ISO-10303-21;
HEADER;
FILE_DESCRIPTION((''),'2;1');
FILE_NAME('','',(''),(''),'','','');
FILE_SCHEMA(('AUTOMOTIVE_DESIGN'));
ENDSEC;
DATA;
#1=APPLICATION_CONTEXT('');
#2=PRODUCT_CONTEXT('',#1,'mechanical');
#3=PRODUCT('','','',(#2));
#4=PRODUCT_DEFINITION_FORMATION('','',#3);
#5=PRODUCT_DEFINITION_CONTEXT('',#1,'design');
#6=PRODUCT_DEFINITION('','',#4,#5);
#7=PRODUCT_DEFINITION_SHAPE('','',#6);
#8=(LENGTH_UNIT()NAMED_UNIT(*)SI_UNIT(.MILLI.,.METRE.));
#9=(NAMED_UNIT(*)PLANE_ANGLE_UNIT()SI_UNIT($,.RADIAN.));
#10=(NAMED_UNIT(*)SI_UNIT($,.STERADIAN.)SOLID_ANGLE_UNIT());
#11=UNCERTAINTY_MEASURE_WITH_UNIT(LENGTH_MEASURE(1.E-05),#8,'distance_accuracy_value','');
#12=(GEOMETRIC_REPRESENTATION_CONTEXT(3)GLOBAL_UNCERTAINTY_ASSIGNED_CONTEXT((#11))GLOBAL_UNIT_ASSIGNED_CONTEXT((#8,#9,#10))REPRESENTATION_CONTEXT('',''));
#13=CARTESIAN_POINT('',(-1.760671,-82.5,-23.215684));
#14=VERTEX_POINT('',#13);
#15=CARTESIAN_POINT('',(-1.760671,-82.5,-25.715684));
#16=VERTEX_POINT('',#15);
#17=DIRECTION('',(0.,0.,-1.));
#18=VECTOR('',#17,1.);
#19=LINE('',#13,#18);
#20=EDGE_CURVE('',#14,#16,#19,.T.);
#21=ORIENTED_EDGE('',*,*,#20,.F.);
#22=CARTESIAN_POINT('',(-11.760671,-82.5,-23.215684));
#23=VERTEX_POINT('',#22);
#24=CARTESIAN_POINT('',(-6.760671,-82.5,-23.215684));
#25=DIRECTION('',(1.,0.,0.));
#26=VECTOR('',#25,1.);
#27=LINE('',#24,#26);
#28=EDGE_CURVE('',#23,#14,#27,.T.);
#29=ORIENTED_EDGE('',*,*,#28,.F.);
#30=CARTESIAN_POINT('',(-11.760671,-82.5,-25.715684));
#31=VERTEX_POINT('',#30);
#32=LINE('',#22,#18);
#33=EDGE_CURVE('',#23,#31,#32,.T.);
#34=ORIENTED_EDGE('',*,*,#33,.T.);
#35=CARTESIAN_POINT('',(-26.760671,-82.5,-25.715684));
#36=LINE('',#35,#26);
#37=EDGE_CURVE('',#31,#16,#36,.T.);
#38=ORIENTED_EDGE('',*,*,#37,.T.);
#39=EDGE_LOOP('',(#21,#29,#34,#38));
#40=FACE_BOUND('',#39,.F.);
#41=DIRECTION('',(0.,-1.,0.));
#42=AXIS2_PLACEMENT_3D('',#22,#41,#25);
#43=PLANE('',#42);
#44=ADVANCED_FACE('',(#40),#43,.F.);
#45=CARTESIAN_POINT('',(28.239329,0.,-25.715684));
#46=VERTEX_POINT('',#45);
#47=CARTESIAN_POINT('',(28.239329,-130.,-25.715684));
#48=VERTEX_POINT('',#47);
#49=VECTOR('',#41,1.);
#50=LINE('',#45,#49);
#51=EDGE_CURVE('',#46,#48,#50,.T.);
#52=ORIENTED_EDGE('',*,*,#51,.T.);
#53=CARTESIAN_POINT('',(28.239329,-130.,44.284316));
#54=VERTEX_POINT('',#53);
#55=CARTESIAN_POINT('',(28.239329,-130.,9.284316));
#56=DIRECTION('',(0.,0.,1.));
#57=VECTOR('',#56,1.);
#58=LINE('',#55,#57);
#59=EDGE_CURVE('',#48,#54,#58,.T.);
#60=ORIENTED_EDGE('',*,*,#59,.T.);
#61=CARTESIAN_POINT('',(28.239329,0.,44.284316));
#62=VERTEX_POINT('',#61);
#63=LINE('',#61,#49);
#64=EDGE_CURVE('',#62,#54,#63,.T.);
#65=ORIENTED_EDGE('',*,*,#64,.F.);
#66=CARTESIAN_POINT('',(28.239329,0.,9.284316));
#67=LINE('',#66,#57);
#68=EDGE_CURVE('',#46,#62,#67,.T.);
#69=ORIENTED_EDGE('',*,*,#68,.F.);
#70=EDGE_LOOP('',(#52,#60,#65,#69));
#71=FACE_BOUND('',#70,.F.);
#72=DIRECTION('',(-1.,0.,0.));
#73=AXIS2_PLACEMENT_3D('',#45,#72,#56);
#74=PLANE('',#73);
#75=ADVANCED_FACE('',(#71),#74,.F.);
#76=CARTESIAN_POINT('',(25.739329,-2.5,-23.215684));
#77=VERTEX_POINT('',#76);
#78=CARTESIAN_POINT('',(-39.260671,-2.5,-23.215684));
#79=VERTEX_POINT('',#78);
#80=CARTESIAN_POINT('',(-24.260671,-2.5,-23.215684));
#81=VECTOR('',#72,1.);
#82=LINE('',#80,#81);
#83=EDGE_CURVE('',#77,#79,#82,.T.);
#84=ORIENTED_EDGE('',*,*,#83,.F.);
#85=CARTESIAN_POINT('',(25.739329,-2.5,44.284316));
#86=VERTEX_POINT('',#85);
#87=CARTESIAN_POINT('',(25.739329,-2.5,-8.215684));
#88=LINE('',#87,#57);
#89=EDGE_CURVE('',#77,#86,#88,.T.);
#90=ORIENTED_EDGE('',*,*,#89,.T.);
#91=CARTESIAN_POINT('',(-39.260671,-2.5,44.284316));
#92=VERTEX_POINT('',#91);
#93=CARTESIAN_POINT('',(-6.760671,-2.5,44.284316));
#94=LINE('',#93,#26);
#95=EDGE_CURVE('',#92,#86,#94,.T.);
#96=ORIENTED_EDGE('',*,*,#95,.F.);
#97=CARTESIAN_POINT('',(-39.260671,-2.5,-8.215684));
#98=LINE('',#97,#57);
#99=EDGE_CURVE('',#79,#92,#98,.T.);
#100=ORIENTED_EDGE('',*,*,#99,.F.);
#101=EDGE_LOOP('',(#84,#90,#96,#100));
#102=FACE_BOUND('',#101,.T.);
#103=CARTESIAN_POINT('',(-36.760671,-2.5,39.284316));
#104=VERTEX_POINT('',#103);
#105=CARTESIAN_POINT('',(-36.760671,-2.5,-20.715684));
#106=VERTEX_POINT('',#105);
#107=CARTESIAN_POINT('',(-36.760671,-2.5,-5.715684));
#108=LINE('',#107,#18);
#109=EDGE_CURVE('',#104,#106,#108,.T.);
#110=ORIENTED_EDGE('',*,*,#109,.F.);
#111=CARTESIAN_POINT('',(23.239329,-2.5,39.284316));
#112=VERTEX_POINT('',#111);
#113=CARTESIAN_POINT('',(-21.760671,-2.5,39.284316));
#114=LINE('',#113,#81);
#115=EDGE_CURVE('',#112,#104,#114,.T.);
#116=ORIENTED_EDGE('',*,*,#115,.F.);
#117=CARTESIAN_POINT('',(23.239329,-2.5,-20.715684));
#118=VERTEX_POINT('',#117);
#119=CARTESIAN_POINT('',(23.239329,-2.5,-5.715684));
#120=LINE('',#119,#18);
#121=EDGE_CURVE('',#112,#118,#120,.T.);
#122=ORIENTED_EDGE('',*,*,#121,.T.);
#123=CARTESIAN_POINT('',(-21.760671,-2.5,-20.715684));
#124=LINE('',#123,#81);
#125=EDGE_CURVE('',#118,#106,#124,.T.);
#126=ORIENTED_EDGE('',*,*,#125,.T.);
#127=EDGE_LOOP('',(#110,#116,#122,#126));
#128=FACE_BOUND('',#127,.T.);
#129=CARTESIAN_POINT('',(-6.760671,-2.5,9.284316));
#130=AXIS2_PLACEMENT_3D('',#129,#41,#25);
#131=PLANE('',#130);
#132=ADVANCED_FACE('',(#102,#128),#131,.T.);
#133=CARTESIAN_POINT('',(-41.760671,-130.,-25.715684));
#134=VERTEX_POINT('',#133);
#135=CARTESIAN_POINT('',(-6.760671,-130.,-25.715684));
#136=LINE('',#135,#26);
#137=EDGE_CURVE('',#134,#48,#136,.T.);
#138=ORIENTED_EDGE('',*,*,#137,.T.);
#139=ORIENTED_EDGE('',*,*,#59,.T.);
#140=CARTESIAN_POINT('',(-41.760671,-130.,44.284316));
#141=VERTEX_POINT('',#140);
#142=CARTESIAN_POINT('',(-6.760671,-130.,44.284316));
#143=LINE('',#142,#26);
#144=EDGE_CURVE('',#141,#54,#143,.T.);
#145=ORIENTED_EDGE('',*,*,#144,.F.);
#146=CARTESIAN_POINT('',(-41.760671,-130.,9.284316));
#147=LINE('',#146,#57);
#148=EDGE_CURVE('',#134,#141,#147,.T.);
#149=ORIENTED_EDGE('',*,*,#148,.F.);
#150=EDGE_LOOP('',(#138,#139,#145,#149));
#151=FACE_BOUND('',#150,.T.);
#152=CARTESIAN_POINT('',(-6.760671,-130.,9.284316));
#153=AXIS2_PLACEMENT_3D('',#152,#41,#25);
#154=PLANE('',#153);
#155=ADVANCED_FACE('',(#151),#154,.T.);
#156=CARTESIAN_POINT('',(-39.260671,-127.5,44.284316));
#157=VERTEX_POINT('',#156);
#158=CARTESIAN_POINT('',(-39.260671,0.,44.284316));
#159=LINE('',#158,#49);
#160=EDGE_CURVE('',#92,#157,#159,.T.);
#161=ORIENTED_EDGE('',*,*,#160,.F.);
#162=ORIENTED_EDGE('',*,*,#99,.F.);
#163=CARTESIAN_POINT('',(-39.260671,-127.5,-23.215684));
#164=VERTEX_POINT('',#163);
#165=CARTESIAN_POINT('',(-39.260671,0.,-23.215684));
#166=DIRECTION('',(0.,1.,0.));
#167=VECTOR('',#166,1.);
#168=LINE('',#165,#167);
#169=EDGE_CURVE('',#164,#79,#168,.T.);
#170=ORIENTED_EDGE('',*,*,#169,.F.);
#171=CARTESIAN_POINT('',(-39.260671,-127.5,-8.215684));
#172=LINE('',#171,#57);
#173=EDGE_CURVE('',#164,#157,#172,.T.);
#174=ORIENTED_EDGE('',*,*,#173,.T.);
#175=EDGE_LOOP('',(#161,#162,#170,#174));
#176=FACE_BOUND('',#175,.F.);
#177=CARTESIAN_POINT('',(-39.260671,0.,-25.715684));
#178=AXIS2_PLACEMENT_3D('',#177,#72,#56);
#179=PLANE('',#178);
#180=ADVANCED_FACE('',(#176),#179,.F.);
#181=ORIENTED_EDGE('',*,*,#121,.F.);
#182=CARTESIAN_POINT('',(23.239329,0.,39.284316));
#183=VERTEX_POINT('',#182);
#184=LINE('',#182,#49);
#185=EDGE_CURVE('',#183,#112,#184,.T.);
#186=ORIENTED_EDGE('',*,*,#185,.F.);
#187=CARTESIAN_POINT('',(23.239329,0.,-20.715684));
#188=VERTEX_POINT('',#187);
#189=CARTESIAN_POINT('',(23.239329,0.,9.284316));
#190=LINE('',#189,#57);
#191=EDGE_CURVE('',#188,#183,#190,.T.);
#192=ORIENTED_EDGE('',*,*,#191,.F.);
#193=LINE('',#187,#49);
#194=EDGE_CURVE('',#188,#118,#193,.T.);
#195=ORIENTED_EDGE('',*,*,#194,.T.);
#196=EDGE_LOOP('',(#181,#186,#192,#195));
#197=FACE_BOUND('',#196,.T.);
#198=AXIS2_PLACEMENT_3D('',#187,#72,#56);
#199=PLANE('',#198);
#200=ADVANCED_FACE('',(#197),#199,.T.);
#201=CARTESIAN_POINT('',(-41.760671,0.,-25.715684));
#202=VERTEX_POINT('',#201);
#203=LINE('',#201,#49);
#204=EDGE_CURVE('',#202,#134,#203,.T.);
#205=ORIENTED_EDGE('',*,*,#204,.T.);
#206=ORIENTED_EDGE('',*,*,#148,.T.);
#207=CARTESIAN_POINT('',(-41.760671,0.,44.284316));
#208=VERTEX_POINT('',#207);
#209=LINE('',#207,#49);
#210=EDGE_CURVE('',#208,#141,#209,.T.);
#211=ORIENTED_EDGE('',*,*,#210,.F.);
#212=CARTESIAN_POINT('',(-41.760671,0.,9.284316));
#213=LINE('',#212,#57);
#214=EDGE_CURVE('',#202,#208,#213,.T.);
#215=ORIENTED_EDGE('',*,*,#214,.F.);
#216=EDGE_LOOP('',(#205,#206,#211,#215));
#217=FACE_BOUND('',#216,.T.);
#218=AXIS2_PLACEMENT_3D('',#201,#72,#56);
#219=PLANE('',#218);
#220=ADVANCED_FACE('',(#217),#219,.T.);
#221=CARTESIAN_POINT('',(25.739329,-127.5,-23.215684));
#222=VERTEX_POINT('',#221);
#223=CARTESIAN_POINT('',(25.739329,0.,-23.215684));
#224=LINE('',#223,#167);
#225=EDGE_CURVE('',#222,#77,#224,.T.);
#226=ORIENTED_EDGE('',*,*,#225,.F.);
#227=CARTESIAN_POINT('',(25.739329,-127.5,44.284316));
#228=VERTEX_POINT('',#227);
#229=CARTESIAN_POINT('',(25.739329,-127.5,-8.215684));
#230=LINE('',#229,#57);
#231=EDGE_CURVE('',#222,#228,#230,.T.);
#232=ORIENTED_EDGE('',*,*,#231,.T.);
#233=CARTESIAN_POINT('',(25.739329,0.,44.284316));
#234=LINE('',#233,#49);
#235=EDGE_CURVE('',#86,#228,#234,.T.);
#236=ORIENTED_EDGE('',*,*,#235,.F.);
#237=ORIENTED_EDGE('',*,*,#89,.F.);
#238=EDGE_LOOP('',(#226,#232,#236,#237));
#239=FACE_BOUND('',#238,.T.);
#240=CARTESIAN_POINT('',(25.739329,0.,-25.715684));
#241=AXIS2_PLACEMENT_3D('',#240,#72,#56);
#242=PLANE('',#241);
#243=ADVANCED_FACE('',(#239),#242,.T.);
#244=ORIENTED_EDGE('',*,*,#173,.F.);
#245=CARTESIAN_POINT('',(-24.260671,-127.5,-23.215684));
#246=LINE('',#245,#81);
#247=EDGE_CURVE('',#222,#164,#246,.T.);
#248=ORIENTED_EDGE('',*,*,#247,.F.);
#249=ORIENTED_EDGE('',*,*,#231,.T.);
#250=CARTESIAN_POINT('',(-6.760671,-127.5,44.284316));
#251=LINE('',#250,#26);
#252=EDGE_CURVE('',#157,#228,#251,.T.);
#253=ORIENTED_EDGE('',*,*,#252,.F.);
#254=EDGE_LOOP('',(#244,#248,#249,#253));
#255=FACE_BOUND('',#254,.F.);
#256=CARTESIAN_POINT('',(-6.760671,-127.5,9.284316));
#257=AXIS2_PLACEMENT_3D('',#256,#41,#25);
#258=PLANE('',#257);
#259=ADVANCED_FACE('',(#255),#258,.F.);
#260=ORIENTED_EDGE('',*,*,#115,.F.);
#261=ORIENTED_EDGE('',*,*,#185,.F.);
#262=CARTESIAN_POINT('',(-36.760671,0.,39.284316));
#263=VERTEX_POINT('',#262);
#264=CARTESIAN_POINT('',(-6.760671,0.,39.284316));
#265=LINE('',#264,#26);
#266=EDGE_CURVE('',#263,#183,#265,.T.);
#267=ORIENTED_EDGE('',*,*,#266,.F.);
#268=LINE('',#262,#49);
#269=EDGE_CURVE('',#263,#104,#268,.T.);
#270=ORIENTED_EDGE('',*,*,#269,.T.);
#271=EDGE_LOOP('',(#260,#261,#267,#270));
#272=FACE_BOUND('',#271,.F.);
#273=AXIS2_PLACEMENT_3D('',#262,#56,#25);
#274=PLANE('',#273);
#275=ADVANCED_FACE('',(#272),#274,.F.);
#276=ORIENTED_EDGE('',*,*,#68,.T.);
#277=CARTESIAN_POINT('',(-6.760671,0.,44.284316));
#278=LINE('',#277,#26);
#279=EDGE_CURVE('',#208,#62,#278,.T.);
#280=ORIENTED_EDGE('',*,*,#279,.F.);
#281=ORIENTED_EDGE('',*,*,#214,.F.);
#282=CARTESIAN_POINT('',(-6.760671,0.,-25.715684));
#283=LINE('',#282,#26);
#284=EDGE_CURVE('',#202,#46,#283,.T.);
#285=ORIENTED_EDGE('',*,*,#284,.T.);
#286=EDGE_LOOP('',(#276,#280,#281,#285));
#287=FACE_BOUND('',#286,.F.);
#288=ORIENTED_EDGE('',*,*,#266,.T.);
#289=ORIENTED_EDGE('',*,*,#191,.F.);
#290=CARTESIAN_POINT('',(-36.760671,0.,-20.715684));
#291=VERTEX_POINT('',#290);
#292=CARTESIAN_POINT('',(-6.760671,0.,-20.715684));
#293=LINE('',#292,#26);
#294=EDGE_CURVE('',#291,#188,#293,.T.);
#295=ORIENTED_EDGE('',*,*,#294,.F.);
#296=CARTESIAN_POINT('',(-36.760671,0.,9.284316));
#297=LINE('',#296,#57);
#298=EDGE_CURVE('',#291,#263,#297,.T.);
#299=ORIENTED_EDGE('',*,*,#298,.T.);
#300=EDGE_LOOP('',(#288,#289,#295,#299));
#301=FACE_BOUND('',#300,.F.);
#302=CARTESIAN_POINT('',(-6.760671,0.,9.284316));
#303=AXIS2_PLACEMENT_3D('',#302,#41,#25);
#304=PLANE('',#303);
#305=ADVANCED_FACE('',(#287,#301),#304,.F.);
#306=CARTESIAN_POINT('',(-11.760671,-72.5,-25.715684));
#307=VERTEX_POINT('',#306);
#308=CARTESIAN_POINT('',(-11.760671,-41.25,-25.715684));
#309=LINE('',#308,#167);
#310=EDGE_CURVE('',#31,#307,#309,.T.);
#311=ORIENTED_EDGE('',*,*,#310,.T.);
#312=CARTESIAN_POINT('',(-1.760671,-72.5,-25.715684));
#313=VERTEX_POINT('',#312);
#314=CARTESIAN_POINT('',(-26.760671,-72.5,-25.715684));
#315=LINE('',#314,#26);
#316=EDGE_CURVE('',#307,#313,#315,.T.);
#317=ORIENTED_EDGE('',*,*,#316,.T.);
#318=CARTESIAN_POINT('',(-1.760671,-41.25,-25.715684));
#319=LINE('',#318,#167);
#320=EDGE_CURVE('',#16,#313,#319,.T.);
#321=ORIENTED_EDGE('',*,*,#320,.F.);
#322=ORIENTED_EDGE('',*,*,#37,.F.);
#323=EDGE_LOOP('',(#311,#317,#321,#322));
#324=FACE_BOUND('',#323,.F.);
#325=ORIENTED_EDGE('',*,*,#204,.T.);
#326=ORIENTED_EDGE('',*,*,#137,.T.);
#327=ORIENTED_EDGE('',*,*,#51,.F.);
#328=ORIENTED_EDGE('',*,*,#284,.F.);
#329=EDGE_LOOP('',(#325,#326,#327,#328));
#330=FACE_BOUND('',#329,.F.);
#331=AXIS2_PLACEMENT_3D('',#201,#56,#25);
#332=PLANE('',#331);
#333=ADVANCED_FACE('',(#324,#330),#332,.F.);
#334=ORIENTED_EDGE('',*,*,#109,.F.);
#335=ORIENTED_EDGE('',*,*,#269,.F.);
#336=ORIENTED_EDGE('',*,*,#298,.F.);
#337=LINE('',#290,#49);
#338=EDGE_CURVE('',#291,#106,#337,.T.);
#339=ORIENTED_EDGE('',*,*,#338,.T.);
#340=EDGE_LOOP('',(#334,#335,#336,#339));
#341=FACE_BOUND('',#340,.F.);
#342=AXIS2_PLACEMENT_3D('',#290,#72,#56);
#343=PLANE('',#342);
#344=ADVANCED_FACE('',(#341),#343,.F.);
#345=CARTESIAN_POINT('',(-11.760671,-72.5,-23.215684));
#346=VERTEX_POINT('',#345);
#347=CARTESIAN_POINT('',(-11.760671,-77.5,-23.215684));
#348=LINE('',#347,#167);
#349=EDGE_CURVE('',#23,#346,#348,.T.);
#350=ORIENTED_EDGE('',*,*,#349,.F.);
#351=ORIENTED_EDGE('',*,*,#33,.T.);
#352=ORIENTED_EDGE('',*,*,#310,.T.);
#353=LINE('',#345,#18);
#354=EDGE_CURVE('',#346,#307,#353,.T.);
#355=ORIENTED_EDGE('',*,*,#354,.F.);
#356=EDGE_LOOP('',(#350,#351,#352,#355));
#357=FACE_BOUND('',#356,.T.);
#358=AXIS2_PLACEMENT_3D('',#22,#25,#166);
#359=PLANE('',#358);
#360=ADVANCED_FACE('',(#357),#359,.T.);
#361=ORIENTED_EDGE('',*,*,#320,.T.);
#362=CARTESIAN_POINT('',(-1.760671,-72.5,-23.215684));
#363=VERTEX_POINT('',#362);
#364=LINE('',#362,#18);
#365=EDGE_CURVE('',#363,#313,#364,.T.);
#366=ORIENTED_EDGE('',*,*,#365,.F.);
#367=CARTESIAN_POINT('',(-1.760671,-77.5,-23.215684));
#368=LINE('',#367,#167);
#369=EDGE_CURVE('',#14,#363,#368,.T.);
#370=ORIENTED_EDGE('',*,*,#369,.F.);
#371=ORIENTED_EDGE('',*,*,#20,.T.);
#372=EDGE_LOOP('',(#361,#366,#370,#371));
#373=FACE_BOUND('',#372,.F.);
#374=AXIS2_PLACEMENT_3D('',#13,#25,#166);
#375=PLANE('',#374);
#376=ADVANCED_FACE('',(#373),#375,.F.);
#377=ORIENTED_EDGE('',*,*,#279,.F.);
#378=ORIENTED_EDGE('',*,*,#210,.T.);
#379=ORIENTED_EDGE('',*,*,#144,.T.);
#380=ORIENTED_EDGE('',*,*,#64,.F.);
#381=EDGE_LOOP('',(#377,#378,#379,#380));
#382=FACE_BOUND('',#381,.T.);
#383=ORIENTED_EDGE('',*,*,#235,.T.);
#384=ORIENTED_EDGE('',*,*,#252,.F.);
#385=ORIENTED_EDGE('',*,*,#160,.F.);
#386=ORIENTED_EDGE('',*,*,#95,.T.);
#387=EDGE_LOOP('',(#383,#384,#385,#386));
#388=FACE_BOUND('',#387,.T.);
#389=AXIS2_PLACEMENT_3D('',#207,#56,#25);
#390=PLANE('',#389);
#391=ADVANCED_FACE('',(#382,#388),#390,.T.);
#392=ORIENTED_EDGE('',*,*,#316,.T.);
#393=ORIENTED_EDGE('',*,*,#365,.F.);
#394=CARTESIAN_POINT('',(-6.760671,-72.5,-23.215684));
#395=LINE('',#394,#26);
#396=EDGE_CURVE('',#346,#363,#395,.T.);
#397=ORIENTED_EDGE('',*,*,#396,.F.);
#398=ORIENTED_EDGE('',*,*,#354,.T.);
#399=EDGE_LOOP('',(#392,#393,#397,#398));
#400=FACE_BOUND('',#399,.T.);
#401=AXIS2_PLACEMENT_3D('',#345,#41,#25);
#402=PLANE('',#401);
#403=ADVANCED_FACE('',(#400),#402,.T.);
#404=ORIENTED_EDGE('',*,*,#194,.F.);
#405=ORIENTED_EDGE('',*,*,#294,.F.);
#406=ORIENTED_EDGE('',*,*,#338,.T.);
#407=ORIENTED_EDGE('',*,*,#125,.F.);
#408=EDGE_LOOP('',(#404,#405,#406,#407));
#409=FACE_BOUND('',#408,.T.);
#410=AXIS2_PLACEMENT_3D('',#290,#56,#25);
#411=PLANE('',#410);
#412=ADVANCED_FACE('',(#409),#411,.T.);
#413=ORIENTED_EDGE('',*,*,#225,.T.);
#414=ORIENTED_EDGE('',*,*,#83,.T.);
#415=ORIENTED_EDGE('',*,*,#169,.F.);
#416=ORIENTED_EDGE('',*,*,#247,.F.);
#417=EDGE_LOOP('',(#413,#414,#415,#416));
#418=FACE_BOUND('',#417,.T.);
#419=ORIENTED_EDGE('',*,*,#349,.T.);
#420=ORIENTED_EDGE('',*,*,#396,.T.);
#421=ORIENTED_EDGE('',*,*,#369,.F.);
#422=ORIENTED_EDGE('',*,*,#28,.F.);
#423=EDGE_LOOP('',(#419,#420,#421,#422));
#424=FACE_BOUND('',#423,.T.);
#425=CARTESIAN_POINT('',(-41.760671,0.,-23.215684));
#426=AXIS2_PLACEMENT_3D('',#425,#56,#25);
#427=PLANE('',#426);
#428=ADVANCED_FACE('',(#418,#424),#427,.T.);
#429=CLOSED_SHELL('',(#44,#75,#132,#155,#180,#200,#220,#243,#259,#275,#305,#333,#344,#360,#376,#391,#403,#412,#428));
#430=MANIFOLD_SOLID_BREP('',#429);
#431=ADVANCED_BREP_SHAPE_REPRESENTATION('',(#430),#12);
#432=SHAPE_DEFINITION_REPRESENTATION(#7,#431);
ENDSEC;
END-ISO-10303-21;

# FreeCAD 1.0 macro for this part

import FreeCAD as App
import Part
import Sketcher


def faces_at(feature, points):
    """Names of the faces that lie closest to the given points."""
    faces = feature.Shape.Faces
    near = lambda p: min(range(len(faces)), key=lambda i: faces[i].distToShape(Part.Vertex(*p))[0])
    return sorted({f"Face{near(p) + 1}" for p in points})

doc = App.newDocument("Part")
params = doc.addObject("Spreadsheet::Sheet", "Params")
for row, (alias, value) in enumerate([
    ("sketch1_width", "70 mm"),
    ("pad1_length", "130 mm"),
    ("thickness_wall", "2.5 mm"),
    ("sketch2_width", "60 mm"),
    ("pocket1_length", "25 mm"),
    ("sketch3_width", "10 mm"),
    ("pocket2_length", "25 mm"),
], start=1):
    params.set(f"A{row}", alias)
    params.set(f"B{row}", "=" + value)
    params.setAlias(f"B{row}", alias)

body = doc.addObject("PartDesign::Body", "Body")

sketch1 = doc.addObject("Sketcher::SketchObject", "Sketch")
body.addObject(sketch1)
sketch1.AttachmentSupport = (doc.XZ_Plane, [""])
sketch1.MapMode = "FlatFace"
sketch1.addGeometry(Part.LineSegment(App.Vector(-41.760671, 44.284316, 0), App.Vector(-41.760671, -25.715684, 0)), False)
sketch1.addGeometry(Part.LineSegment(App.Vector(-41.760671, -25.715684, 0), App.Vector(28.239329, -25.715684, 0)), False)
sketch1.addGeometry(Part.LineSegment(App.Vector(28.239329, -25.715684, 0), App.Vector(28.239329, 44.284316, 0)), False)
sketch1.addGeometry(Part.LineSegment(App.Vector(28.239329, 44.284316, 0), App.Vector(-41.760671, 44.284316, 0)), False)
sketch1.addConstraint(Sketcher.Constraint("Coincident", 0, 2, 1, 1))
sketch1.addConstraint(Sketcher.Constraint("Coincident", 1, 2, 2, 1))
sketch1.addConstraint(Sketcher.Constraint("Coincident", 2, 2, 3, 1))
sketch1.addConstraint(Sketcher.Constraint("Coincident", 3, 2, 0, 1))
sketch1.addConstraint(Sketcher.Constraint("Vertical", 0))
sketch1.addConstraint(Sketcher.Constraint("Horizontal", 1))
sketch1.addConstraint(Sketcher.Constraint("Vertical", 2))
sketch1.addConstraint(Sketcher.Constraint("Horizontal", 3))
sketch1.addConstraint(Sketcher.Constraint("Equal", 3, 0))
sketch1.addConstraint(Sketcher.Constraint("DistanceX", 1, 1, 1, 2, 70.0))
sketch1.addConstraint(Sketcher.Constraint("DistanceX", 0, 2, -1, 1, 41.760671))
sketch1.addConstraint(Sketcher.Constraint("DistanceY", 0, 2, -1, 1, 25.715684))
sketch1.setExpression("Constraints[9]", "Params.sketch1_width")
pad1 = doc.addObject("PartDesign::Pad", "Pad")
body.addObject(pad1)
pad1.Profile = sketch1
pad1.setExpression("Length", "Params.pad1_length")
doc.recompute()

thickness = doc.addObject("PartDesign::Thickness", "Thickness")
body.addObject(thickness)
thickness.Base = (pad1, faces_at(pad1, [(-6.761, -65, 44.284)]))
thickness.setExpression("Value", "Params.thickness_wall")
thickness.Reversed = True
thickness.Join = "Arc"

sketch2 = doc.addObject("Sketcher::SketchObject", "Sketch001")
body.addObject(sketch2)
sketch2.AttachmentSupport = (doc.XZ_Plane, [""])
sketch2.MapMode = "FlatFace"
sketch2.addGeometry(Part.LineSegment(App.Vector(-36.760671, 39.284316, 0), App.Vector(-36.760671, -20.715684, 0)), False)
sketch2.addGeometry(Part.LineSegment(App.Vector(-36.760671, -20.715684, 0), App.Vector(23.239329, -20.715684, 0)), False)
sketch2.addGeometry(Part.LineSegment(App.Vector(23.239329, -20.715684, 0), App.Vector(23.239329, 39.284316, 0)), False)
sketch2.addGeometry(Part.LineSegment(App.Vector(23.239329, 39.284316, 0), App.Vector(-36.760671, 39.284316, 0)), False)
sketch2.addConstraint(Sketcher.Constraint("Coincident", 0, 2, 1, 1))
sketch2.addConstraint(Sketcher.Constraint("Coincident", 1, 2, 2, 1))
sketch2.addConstraint(Sketcher.Constraint("Coincident", 2, 2, 3, 1))
sketch2.addConstraint(Sketcher.Constraint("Coincident", 3, 2, 0, 1))
sketch2.addConstraint(Sketcher.Constraint("Vertical", 0))
sketch2.addConstraint(Sketcher.Constraint("Horizontal", 1))
sketch2.addConstraint(Sketcher.Constraint("Vertical", 2))
sketch2.addConstraint(Sketcher.Constraint("Horizontal", 3))
sketch2.addConstraint(Sketcher.Constraint("Equal", 3, 0))
sketch2.addConstraint(Sketcher.Constraint("DistanceX", 1, 1, 1, 2, 60.0))
sketch2.addConstraint(Sketcher.Constraint("DistanceX", 0, 2, -1, 1, 36.760671))
sketch2.addConstraint(Sketcher.Constraint("DistanceY", 0, 2, -1, 1, 20.715684))
sketch2.setExpression("Constraints[9]", "Params.sketch2_width")
pocket1 = doc.addObject("PartDesign::Pocket", "Pocket")
body.addObject(pocket1)
pocket1.Profile = sketch2
pocket1.setExpression("Length", "Params.pocket1_length")
pocket1.Reversed = True

sketch3 = doc.addObject("Sketcher::SketchObject", "Sketch002")
body.addObject(sketch3)
sketch3.AttachmentSupport = (doc.XY_Plane, [""])
sketch3.MapMode = "FlatFace"
sketch3.AttachmentOffset = App.Placement(App.Vector(0, 0, -23.215684), App.Rotation())
sketch3.addGeometry(Part.LineSegment(App.Vector(-11.760671, -72.5, 0), App.Vector(-11.760671, -82.5, 0)), False)
sketch3.addGeometry(Part.LineSegment(App.Vector(-11.760671, -82.5, 0), App.Vector(-1.760671, -82.5, 0)), False)
sketch3.addGeometry(Part.LineSegment(App.Vector(-1.760671, -82.5, 0), App.Vector(-1.760671, -72.5, 0)), False)
sketch3.addGeometry(Part.LineSegment(App.Vector(-1.760671, -72.5, 0), App.Vector(-11.760671, -72.5, 0)), False)
sketch3.addConstraint(Sketcher.Constraint("Coincident", 0, 2, 1, 1))
sketch3.addConstraint(Sketcher.Constraint("Coincident", 1, 2, 2, 1))
sketch3.addConstraint(Sketcher.Constraint("Coincident", 2, 2, 3, 1))
sketch3.addConstraint(Sketcher.Constraint("Coincident", 3, 2, 0, 1))
sketch3.addConstraint(Sketcher.Constraint("Vertical", 0))
sketch3.addConstraint(Sketcher.Constraint("Horizontal", 1))
sketch3.addConstraint(Sketcher.Constraint("Vertical", 2))
sketch3.addConstraint(Sketcher.Constraint("Horizontal", 3))
sketch3.addConstraint(Sketcher.Constraint("Equal", 3, 0))
sketch3.addConstraint(Sketcher.Constraint("DistanceX", 1, 1, 1, 2, 10.0))
sketch3.addConstraint(Sketcher.Constraint("DistanceY", 0, 2, -1, 1, 82.5))
sketch3.addConstraint(Sketcher.Constraint("DistanceX", 0, 2, -1, 1, 11.760671))
sketch3.setExpression("Constraints[9]", "Params.sketch3_width")
pocket2 = doc.addObject("PartDesign::Pocket", "Pocket001")
body.addObject(pocket2)
pocket2.Profile = sketch3
pocket2.setExpression("Length", "Params.pocket2_length")

doc.recompute()
